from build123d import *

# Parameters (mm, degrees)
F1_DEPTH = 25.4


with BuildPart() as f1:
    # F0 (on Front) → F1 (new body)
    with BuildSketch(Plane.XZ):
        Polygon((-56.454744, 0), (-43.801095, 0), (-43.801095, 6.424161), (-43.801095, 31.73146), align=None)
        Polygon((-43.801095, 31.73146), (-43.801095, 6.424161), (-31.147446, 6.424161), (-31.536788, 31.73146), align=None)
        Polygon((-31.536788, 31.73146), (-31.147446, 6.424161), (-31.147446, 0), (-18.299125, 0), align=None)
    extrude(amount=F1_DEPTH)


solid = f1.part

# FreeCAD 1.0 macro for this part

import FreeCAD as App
import Part
import Sketcher

V = App.Vector
Q = App.Units.Quantity

doc = App.newDocument("Part")
body = doc.addObject("PartDesign::Body", "Body")

sketch1 = doc.addObject("Sketcher::SketchObject", "Sketch")
body.addObject(sketch1)
sketch1.AttachmentSupport = (doc.XZ_Plane, [""])
sketch1.MapMode = "FlatFace"
sketch1.addGeometry([
    Part.LineSegment(V(-56, 0, 0), V(-44, 0, 0)),
    Part.LineSegment(V(-44, 0, 0), V(-44, 6, 0)),
    Part.LineSegment(V(-44, 6, 0), V(-31, 6, 0)),
    Part.LineSegment(V(-31, 6, 0), V(-31, 0, 0)),
    Part.LineSegment(V(-31, 0, 0), V(-18, 0, 0)),
    Part.LineSegment(V(-18, 0, 0), V(-32, 32, 0)),
    Part.LineSegment(V(-32, 32, 0), V(-44, 32, 0)),
    Part.LineSegment(V(-44, 32, 0), V(-56, 0, 0)),
], False)
sketch1.addConstraint([
    Sketcher.Constraint("Coincident", 0, 2, 1, 1),
    Sketcher.Constraint("Coincident", 1, 2, 2, 1),
    Sketcher.Constraint("Coincident", 2, 2, 3, 1),
    Sketcher.Constraint("Coincident", 3, 2, 4, 1),
    Sketcher.Constraint("Coincident", 4, 2, 5, 1),
    Sketcher.Constraint("Coincident", 5, 2, 6, 1),
    Sketcher.Constraint("Coincident", 6, 2, 7, 1),
    Sketcher.Constraint("Coincident", 7, 2, 0, 1),
    Sketcher.Constraint("Horizontal", 0),
    Sketcher.Constraint("Vertical", 1),
    Sketcher.Constraint("Horizontal", 2),
    Sketcher.Constraint("Vertical", 3),
    Sketcher.Constraint("Horizontal", 4),
    Sketcher.Constraint("Horizontal", 6),
    Sketcher.Constraint("PointOnObject", 0, 2, -1),
    Sketcher.Constraint("PointOnObject", 3, 2, -1),
    Sketcher.Constraint("Vertical", 1, 2, 6, 2),
    Sketcher.Constraint("Equal", 0, 2),
    Sketcher.Constraint("DistanceX", 0, 1, 0, 2, 12.653649),
    Sketcher.Constraint("DistanceX", 4, 1, 4, 2, 12.848321),
    Sketcher.Constraint("DistanceY", 1, 1, 1, 2, 6.424161),
    Sketcher.Constraint("DistanceY", 2, 2, 5, 2, 25.307299),
    Sketcher.Constraint("Distance", 5, 34.381991),
    Sketcher.Constraint("DistanceX", 5, 2, -1, 1, 31.536788),
])
pad1 = doc.addObject("PartDesign::Pad", "Pad")
body.addObject(pad1)
pad1.Profile = sketch1
pad1.Length = Q("1 in")

doc.recompute()
